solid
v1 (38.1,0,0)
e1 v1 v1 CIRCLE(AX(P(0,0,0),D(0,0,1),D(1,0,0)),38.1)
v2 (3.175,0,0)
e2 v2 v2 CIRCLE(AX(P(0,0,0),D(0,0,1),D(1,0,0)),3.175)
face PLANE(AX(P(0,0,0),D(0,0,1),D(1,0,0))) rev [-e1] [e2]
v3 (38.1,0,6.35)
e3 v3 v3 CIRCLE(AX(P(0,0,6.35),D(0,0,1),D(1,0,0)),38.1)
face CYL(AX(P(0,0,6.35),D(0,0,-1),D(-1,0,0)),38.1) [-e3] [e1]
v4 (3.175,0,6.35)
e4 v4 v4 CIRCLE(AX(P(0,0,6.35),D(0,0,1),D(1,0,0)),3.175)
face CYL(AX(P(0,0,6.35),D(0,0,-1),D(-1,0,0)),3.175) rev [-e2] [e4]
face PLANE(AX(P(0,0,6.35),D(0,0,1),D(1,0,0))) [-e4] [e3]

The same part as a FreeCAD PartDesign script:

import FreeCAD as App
import Part
import Sketcher

V = App.Vector
Q = App.Units.Quantity

doc = App.newDocument("Part")
body = doc.addObject("PartDesign::Body", "Body")

# Sketch on XY plane
sketch1 = doc.addObject("Sketcher::SketchObject", "Sketch")
body.addObject(sketch1)
sketch1.AttachmentSupport = (doc.XY_Plane, [""])
sketch1.MapMode = "FlatFace"
sketch1.addGeometry(Part.Circle(V(0, 0, 0), V(0, 0, 1), 38.1), False)
sketch1.addGeometry(Part.Circle(V(0, 0, 0), V(0, 0, 1), 3.2), False)
sketch1.addConstraint(Sketcher.Constraint("Coincident", 0, 3, -1, 1))
sketch1.addConstraint(Sketcher.Constraint("Coincident", 1, 3, -1, 1))
sketch1.addConstraint(Sketcher.Constraint("Diameter", 0, Q("3 in")))
sketch1.addConstraint(Sketcher.Constraint("Diameter", 1, Q("0.25 in")))
pad1 = doc.addObject("PartDesign::Pad", "Pad")
body.addObject(pad1)
pad1.Profile = sketch1
pad1.Length = Q("0.25 in")

doc.recompute()
